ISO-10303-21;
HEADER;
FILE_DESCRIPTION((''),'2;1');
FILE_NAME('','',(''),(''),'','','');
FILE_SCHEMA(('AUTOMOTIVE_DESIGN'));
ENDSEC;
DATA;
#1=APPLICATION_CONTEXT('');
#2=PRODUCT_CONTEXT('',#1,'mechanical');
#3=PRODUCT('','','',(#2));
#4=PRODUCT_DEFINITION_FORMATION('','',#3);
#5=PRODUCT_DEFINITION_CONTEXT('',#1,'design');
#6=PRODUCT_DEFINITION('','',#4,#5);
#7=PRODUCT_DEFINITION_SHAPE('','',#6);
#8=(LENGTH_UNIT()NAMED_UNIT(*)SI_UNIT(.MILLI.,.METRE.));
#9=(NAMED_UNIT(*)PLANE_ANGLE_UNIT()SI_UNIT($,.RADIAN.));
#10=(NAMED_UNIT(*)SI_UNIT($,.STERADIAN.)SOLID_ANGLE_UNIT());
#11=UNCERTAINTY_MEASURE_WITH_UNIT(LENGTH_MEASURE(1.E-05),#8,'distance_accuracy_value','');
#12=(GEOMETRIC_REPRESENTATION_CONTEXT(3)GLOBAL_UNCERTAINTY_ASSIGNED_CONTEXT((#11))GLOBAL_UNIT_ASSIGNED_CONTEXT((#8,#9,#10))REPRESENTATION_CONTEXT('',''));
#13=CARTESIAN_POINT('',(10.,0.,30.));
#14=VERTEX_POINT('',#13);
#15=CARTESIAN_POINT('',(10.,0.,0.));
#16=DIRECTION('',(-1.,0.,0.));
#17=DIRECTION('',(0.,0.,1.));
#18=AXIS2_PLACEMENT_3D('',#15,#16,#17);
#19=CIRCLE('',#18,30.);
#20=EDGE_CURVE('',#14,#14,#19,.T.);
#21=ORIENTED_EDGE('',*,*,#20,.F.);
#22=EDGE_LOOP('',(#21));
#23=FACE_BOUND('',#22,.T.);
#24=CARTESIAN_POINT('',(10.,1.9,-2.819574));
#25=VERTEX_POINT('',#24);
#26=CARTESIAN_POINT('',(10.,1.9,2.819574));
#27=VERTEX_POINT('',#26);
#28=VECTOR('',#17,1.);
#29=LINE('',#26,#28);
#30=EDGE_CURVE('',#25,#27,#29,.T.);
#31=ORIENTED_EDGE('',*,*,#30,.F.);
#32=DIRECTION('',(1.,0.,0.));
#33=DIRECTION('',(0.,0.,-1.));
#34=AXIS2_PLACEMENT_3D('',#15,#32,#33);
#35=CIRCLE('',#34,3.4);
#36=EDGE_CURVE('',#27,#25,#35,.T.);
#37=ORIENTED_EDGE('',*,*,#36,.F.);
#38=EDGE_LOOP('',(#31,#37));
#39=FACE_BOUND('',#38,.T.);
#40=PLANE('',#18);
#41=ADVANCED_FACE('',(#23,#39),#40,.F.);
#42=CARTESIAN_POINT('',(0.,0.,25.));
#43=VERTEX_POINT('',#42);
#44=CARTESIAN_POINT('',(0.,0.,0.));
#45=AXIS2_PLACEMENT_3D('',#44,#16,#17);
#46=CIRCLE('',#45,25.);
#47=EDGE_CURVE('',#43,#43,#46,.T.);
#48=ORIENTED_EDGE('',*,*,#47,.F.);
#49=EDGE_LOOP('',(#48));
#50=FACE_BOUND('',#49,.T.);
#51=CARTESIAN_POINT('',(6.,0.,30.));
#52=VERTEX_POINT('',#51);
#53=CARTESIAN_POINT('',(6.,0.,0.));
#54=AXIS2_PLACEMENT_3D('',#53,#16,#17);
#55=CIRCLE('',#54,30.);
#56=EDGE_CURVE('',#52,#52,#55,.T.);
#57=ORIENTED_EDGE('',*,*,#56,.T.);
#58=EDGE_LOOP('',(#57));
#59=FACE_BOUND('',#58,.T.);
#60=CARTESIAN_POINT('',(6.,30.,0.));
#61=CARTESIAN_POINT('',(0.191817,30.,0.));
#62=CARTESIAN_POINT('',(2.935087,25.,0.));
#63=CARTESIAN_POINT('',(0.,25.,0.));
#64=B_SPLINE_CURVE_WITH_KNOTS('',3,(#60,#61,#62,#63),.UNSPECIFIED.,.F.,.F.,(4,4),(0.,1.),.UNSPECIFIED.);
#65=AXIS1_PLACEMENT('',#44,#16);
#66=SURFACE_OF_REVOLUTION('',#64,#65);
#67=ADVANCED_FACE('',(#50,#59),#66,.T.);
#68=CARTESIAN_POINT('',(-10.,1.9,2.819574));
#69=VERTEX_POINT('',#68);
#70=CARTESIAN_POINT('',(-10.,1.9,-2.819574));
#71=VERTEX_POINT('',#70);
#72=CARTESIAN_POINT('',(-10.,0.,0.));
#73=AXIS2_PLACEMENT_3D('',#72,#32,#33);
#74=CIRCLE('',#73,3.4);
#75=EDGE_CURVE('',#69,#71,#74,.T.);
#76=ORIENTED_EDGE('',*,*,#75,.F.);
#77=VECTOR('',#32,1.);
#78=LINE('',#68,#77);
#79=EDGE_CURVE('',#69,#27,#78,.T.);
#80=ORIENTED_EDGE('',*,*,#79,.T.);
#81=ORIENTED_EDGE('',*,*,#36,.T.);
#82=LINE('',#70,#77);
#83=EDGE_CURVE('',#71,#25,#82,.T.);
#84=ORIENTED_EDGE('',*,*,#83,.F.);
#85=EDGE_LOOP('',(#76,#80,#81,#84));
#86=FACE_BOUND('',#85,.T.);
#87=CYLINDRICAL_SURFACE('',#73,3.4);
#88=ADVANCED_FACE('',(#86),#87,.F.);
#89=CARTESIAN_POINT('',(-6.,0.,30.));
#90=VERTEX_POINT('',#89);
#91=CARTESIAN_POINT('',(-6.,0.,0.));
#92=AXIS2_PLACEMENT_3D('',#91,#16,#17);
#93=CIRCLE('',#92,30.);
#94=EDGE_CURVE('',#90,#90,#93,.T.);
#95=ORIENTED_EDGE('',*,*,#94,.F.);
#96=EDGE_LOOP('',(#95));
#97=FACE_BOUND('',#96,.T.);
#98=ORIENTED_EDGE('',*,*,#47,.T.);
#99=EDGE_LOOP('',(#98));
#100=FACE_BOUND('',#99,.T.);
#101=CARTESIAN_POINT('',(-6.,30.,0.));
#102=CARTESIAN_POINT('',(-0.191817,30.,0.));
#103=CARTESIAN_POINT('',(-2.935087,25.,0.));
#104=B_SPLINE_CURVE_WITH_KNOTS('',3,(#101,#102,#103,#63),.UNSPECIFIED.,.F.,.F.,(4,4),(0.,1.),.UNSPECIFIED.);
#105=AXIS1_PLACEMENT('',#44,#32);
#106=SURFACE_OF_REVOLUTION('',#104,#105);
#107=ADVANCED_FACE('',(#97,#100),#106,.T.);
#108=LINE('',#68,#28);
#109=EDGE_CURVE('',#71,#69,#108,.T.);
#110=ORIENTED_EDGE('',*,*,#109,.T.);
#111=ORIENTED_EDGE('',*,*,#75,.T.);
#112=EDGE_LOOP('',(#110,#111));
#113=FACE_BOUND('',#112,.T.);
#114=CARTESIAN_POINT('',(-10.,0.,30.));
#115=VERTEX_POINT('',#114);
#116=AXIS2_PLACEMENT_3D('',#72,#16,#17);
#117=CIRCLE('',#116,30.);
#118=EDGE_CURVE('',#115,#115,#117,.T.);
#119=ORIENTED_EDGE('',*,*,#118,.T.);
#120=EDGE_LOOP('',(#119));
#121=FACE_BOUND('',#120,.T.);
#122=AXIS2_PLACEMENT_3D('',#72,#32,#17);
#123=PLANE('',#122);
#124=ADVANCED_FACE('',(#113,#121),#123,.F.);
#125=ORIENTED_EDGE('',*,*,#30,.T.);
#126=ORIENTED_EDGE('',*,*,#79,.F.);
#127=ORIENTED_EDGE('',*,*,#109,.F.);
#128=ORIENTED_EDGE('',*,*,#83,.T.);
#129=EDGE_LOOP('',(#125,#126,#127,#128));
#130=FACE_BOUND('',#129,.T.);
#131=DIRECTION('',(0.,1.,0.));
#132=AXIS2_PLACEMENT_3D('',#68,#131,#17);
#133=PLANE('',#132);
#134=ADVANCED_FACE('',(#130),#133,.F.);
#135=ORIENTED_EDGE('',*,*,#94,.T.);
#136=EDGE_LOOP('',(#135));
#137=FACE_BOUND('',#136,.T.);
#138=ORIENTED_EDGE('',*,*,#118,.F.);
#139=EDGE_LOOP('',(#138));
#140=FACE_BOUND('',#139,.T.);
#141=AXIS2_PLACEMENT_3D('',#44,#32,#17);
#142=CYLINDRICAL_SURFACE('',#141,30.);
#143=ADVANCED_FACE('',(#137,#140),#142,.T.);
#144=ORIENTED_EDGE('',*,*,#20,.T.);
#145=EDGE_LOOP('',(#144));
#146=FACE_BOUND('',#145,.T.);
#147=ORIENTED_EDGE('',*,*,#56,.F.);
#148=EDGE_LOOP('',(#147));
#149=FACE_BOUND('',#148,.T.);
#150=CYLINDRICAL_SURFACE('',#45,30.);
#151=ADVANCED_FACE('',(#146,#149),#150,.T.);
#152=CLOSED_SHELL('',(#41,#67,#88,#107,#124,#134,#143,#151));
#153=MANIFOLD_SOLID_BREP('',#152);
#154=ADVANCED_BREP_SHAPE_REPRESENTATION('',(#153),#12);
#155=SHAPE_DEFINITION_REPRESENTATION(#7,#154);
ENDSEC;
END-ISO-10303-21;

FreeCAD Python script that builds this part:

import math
import FreeCAD as App
import Part
import Sketcher

doc = App.newDocument("Part")
body = doc.addObject("PartDesign::Body", "Body")

# Sketch on XY plane
sketch1 = doc.addObject("Sketcher::SketchObject", "Sketch")
body.addObject(sketch1)
sketch1.AttachmentSupport = (doc.XY_Plane, [""])
sketch1.MapMode = "FlatFace"
sketch1.addGeometry(Part.LineSegment(App.Vector(0, 25, 0), App.Vector(0, 0, 0)), False)
sketch1.addGeometry(Part.LineSegment(App.Vector(0, 0, 0), App.Vector(10, 0, 0)), False)
sketch1.addGeometry(Part.LineSegment(App.Vector(10, 0, 0), App.Vector(10, 30, 0)), False)
sketch1.addGeometry(Part.LineSegment(App.Vector(10, 30, 0), App.Vector(6, 30, 0)), False)
sketch1.addGeometry(Part.BSplineCurve([App.Vector(0, 25, 0), App.Vector(2.935087, 25, 0), App.Vector(0.191817, 30, 0), App.Vector(6, 30, 0)], [4, 4], [0, 1], False, 3, [1, 1, 1, 1], False), False)
sketch1.addConstraint(Sketcher.Constraint("Block", 4))
sketch1.addConstraint(Sketcher.Constraint("Coincident", 0, 2, 1, 1))
sketch1.addConstraint(Sketcher.Constraint("Coincident", 1, 2, 2, 1))
sketch1.addConstraint(Sketcher.Constraint("Coincident", 2, 2, 3, 1))
sketch1.addConstraint(Sketcher.Constraint("Coincident", 3, 2, 4, 2))
sketch1.addConstraint(Sketcher.Constraint("Coincident", 4, 1, 0, 1))
sketch1.addConstraint(Sketcher.Constraint("Vertical", 0))
sketch1.addConstraint(Sketcher.Constraint("Horizontal", 1))
sketch1.addConstraint(Sketcher.Constraint("Vertical", 2))
sketch1.addConstraint(Sketcher.Constraint("Horizontal", 3))
sketch1.addConstraint(Sketcher.Constraint("PointOnObject", 1, 2, -1))
sketch1.addConstraint(Sketcher.Constraint("DistanceX", 1, 1, 1, 2, 10.0))
revolution = doc.addObject("PartDesign::Revolution", "Revolution")
body.addObject(revolution)
revolution.Profile = sketch1
revolution.ReferenceAxis = (sketch1, ["H_Axis"])
revolution.Angle = 360
doc.recompute()

mirrored = doc.addObject("PartDesign::Mirrored", "Mirrored")
body.addObject(mirrored)
mirrored.Originals = [revolution]
mirrored.MirrorPlane = (doc.YZ_Plane, [""])
body.Tip = mirrored

# Sketch on YZ plane
sketch2 = doc.addObject("Sketcher::SketchObject", "Sketch001")
body.addObject(sketch2)
sketch2.AttachmentSupport = (doc.YZ_Plane, [""])
sketch2.MapMode = "FlatFace"
sketch2.AttachmentOffset = App.Placement(App.Vector(0, 0, 10), App.Rotation())
sketch2.addGeometry(Part.LineSegment(App.Vector(1.9, -2.8, 0), App.Vector(1.9, 2.8, 0)), False)
sketch2.addGeometry(Part.ArcOfCircle(Part.Circle(App.Vector(0, 0, 0), App.Vector(0, 0, 1), 3.4), math.radians(56), math.radians(304)), False)
sketch2.addConstraint(Sketcher.Constraint("Coincident", 0, 1, 1, 2))
sketch2.addConstraint(Sketcher.Constraint("Coincident", 1, 1, 0, 2))
sketch2.addConstraint(Sketcher.Constraint("Vertical", 0))
sketch2.addConstraint(Sketcher.Constraint("Coincident", 1, 3, -1, 1))
sketch2.addConstraint(Sketcher.Constraint("Radius", 1, 3.4))
sketch2.addConstraint(Sketcher.Constraint("DistanceX", -1, 1, 0, 1, 1.9))
pocket1 = doc.addObject("PartDesign::Pocket", "Pocket")
body.addObject(pocket1)
pocket1.Profile = sketch2
pocket1.Type = "ThroughAll"

doc.recompute()
